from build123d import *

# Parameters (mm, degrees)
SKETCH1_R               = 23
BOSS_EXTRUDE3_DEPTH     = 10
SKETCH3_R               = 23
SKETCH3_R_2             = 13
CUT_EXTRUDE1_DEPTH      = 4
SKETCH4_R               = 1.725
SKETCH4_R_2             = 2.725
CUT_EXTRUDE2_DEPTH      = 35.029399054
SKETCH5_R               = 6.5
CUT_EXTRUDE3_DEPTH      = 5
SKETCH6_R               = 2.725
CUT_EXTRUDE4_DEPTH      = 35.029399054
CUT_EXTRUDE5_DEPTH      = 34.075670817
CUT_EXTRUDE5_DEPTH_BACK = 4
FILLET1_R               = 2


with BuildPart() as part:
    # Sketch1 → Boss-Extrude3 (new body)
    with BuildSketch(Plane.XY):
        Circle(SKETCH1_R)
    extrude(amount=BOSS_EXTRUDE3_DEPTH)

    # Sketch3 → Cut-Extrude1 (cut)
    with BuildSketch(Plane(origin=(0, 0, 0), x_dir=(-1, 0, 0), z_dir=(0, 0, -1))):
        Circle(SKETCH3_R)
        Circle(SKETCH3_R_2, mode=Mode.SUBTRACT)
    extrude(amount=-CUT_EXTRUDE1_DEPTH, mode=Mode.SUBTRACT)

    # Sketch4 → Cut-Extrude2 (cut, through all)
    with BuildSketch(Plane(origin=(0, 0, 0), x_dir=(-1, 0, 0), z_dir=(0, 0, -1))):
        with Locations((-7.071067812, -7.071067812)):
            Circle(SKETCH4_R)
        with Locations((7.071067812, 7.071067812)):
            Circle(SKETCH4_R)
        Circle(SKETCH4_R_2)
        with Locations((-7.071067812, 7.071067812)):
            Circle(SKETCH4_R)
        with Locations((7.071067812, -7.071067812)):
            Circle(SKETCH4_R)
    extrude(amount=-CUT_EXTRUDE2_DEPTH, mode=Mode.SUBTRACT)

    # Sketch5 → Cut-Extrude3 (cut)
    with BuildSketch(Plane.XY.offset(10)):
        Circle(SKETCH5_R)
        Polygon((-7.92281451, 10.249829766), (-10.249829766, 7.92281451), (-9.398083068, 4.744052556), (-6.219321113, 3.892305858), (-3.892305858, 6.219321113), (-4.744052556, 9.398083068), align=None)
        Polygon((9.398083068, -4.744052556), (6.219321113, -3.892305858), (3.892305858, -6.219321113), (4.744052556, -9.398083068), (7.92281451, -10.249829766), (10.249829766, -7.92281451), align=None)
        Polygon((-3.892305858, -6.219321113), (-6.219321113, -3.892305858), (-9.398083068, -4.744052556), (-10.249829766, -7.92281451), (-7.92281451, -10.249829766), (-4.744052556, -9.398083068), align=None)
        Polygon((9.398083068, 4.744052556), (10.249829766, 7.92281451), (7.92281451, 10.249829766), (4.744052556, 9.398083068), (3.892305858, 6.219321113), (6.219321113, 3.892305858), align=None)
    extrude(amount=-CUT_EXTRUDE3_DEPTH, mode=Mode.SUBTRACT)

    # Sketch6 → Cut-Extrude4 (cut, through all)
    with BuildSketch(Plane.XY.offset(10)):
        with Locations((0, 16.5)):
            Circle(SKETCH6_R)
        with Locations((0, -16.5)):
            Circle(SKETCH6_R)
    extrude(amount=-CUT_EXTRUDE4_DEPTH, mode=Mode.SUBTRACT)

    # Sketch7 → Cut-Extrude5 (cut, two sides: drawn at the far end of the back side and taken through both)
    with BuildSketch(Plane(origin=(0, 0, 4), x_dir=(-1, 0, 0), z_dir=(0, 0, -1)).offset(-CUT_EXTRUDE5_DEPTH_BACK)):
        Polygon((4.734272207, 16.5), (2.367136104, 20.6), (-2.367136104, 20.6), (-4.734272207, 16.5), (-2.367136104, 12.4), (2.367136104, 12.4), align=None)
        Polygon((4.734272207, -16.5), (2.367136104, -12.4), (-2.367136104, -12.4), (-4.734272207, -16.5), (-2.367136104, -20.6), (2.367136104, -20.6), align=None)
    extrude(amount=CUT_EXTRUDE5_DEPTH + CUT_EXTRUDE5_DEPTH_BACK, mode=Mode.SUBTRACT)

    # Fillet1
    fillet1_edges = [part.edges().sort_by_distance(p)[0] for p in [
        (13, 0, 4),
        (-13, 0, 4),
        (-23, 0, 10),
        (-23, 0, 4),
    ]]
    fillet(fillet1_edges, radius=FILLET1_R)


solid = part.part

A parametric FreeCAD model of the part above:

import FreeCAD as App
import Part
import Sketcher
from FreeCAD import Vector
Q = App.Units.Quantity


def edges_at(feature, points):
    """Names of the edges that pass closest to the given points."""
    edges = feature.Shape.Edges
    near = lambda p: min(range(len(edges)), key=lambda i: edges[i].distToShape(Part.Vertex(*p))[0])
    return sorted({f"Edge{near(p) + 1}" for p in points})

doc = App.newDocument("Part")
body = doc.addObject("PartDesign::Body", "Body")

sketch1 = body.newObject("Sketcher::SketchObject", "Sketch")
sketch1.AttachmentSupport = (doc.getObject("XY_Plane"), [""])
sketch1.MapMode = "FlatFace"
sketch1.addGeometry(Part.Circle(Vector(0, 0, 0), Vector(0, 0, 1), 23), False)
sketch1.addConstraint([
    Sketcher.Constraint("Coincident", 0, 3, -1, 1),
    Sketcher.Constraint("Diameter", 0, 46.0),
])
pad1 = body.newObject("PartDesign::Pad", "Pad")
pad1.Profile = sketch1
pad1.Length = 10

sketch2 = body.newObject("Sketcher::SketchObject", "Sketch001")
sketch2.AttachmentSupport = (doc.getObject("XY_Plane"), [""])
sketch2.MapMode = "FlatFace"
sketch2.addGeometry([
    Part.Circle(Vector(0, 0, 0), Vector(0, 0, 1), 23),
    Part.Circle(Vector(0, 0, 0), Vector(0, 0, 1), 13),
], False)
sketch2.addConstraint([
    Sketcher.Constraint("Coincident", 0, 3, -1, 1),
    Sketcher.Constraint("Coincident", 1, 3, -1, 1),
    Sketcher.Constraint("Diameter", 0, 46.0),
    Sketcher.Constraint("Diameter", 1, 26.0),
])
pocket1 = body.newObject("PartDesign::Pocket", "Pocket")
pocket1.Profile = sketch2
pocket1.Length = 4
pocket1.Reversed = True

sketch3 = body.newObject("Sketcher::SketchObject", "Sketch002")
sketch3.AttachmentSupport = (doc.getObject("XY_Plane"), [""])
sketch3.MapMode = "FlatFace"
sketch3.addGeometry([
    Part.Circle(Vector(7.1, -7.1, 0), Vector(0, 0, 1), 1.7),
    Part.Circle(Vector(-7.1, 7.1, 0), Vector(0, 0, 1), 1.7),
    Part.Circle(Vector(0, 0, 0), Vector(0, 0, 1), 2.7),
    Part.Circle(Vector(7.1, 7.1, 0), Vector(0, 0, 1), 1.7),
    Part.Circle(Vector(-7.1, -7.1, 0), Vector(0, 0, 1), 1.7),
], False)
sketch3.addConstraint([
    Sketcher.Constraint("Coincident", 2, 3, -1, 1),
    Sketcher.Constraint("Equal", 0, 1),
    Sketcher.Constraint("Equal", 1, 3),
    Sketcher.Constraint("Equal", 3, 4),
    Sketcher.Constraint("Symmetric", 0, 3, 1, 3, -1, 1),
    Sketcher.Constraint("Symmetric", 3, 3, 4, 3, -1, 1),
    Sketcher.Constraint("Symmetric", 1, 3, 3, 3, -2),
    Sketcher.Constraint("Diameter", 0, 3.45),
    Sketcher.Constraint("Diameter", 2, 5.45),
    Sketcher.Constraint("DistanceX", -1, 1, 0, 3, 7.071068),
    Sketcher.Constraint("DistanceY", 0, 3, -1, 1, 7.071068),
])
pocket2 = body.newObject("PartDesign::Pocket", "Pocket001")
pocket2.Profile = sketch3
pocket2.Type = "ThroughAll"
pocket2.Reversed = True

sketch4 = body.newObject("Sketcher::SketchObject", "Sketch003")
sketch4.AttachmentSupport = (doc.getObject("XY_Plane"), [""])
sketch4.MapMode = "FlatFace"
sketch4.AttachmentOffset = App.Placement(Vector(0, 0, 10), App.Rotation())
sketch4.addGeometry([
    Part.Circle(Vector(0, 0, 0), Vector(0, 0, 1), 6.5),
    Part.LineSegment(Vector(-7.9, 10.2, 0), Vector(-10.2, 7.9, 0)),
    Part.LineSegment(Vector(-10.2, 7.9, 0), Vector(-9.4, 4.7, 0)),
    Part.LineSegment(Vector(-9.4, 4.7, 0), Vector(-6.2, 3.9, 0)),
    Part.LineSegment(Vector(-6.2, 3.9, 0), Vector(-3.9, 6.2, 0)),
    Part.LineSegment(Vector(-3.9, 6.2, 0), Vector(-4.7, 9.4, 0)),
    Part.LineSegment(Vector(-4.7, 9.4, 0), Vector(-7.9, 10.2, 0)),
    Part.LineSegment(Vector(9.4, -4.7, 0), Vector(6.2, -3.9, 0)),
    Part.LineSegment(Vector(6.2, -3.9, 0), Vector(3.9, -6.2, 0)),
    Part.LineSegment(Vector(3.9, -6.2, 0), Vector(4.7, -9.4, 0)),
    Part.LineSegment(Vector(4.7, -9.4, 0), Vector(7.9, -10.2, 0)),
    Part.LineSegment(Vector(7.9, -10.2, 0), Vector(10.2, -7.9, 0)),
    Part.LineSegment(Vector(10.2, -7.9, 0), Vector(9.4, -4.7, 0)),
    Part.LineSegment(Vector(-3.9, -6.2, 0), Vector(-6.2, -3.9, 0)),
    Part.LineSegment(Vector(-6.2, -3.9, 0), Vector(-9.4, -4.7, 0)),
    Part.LineSegment(Vector(-9.4, -4.7, 0), Vector(-10.2, -7.9, 0)),
    Part.LineSegment(Vector(-10.2, -7.9, 0), Vector(-7.9, -10.2, 0)),
    Part.LineSegment(Vector(-7.9, -10.2, 0), Vector(-4.7, -9.4, 0)),
    Part.LineSegment(Vector(-4.7, -9.4, 0), Vector(-3.9, -6.2, 0)),
    Part.LineSegment(Vector(9.4, 4.7, 0), Vector(10.2, 7.9, 0)),
    Part.LineSegment(Vector(10.2, 7.9, 0), Vector(7.9, 10.2, 0)),
    Part.LineSegment(Vector(7.9, 10.2, 0), Vector(4.7, 9.4, 0)),
    Part.LineSegment(Vector(4.7, 9.4, 0), Vector(3.9, 6.2, 0)),
    Part.LineSegment(Vector(3.9, 6.2, 0), Vector(6.2, 3.9, 0)),
    Part.LineSegment(Vector(6.2, 3.9, 0), Vector(9.4, 4.7, 0)),
], False)
sketch4.addConstraint([
    Sketcher.Constraint("Coincident", 1, 2, 2, 1),
    Sketcher.Constraint("Coincident", 2, 2, 3, 1),
    Sketcher.Constraint("Coincident", 3, 2, 4, 1),
    Sketcher.Constraint("Coincident", 4, 2, 5, 1),
    Sketcher.Constraint("Coincident", 5, 2, 6, 1),
    Sketcher.Constraint("Coincident", 6, 2, 1, 1),
    Sketcher.Constraint("Coincident", 7, 2, 8, 1),
    Sketcher.Constraint("Coincident", 8, 2, 9, 1),
    Sketcher.Constraint("Coincident", 9, 2, 10, 1),
    Sketcher.Constraint("Coincident", 10, 2, 11, 1),
    Sketcher.Constraint("Coincident", 11, 2, 12, 1),
    Sketcher.Constraint("Coincident", 12, 2, 7, 1),
    Sketcher.Constraint("Coincident", 13, 2, 14, 1),
    Sketcher.Constraint("Coincident", 14, 2, 15, 1),
    Sketcher.Constraint("Coincident", 15, 2, 16, 1),
    Sketcher.Constraint("Coincident", 16, 2, 17, 1),
    Sketcher.Constraint("Coincident", 17, 2, 18, 1),
    Sketcher.Constraint("Coincident", 18, 2, 13, 1),
    Sketcher.Constraint("Coincident", 19, 2, 20, 1),
    Sketcher.Constraint("Coincident", 20, 2, 21, 1),
    Sketcher.Constraint("Coincident", 21, 2, 22, 1),
    Sketcher.Constraint("Coincident", 22, 2, 23, 1),
    Sketcher.Constraint("Coincident", 23, 2, 24, 1),
    Sketcher.Constraint("Coincident", 24, 2, 19, 1),
    Sketcher.Constraint("Coincident", 0, 3, -1, 1),
    Sketcher.Constraint("Symmetric", 3, 2, 7, 2, -1, 1),
    Sketcher.Constraint("Symmetric", 4, 2, 8, 2, -1, 1),
    Sketcher.Constraint("Symmetric", 5, 2, 9, 2, -1, 1),
    Sketcher.Constraint("Symmetric", 6, 2, 10, 2, -1, 1),
    Sketcher.Constraint("Symmetric", 1, 2, 11, 2, -1, 1),
    Sketcher.Constraint("Symmetric", 2, 2, 12, 2, -1, 1),
    Sketcher.Constraint("Symmetric", 15, 2, 19, 2, -1, 1),
    Sketcher.Constraint("Symmetric", 16, 2, 20, 2, -1, 1),
    Sketcher.Constraint("Symmetric", 17, 2, 21, 2, -1, 1),
    Sketcher.Constraint("Symmetric", 18, 2, 22, 2, -1, 1),
    Sketcher.Constraint("Symmetric", 13, 2, 23, 2, -1, 1),
    Sketcher.Constraint("Symmetric", 14, 2, 24, 2, -1, 1),
    Sketcher.Constraint("Symmetric", 7, 2, 13, 2, -2),
    Sketcher.Constraint("Symmetric", 12, 2, 14, 2, -2),
    Sketcher.Constraint("Symmetric", 11, 2, 15, 2, -2),
    Sketcher.Constraint("Symmetric", 10, 2, 16, 2, -2),
    Sketcher.Constraint("Symmetric", 9, 2, 17, 2, -2),
    Sketcher.Constraint("Symmetric", 8, 2, 18, 2, -2),
    Sketcher.Constraint("Parallel", 1, 4),
    Sketcher.Constraint("Parallel", 2, 5),
    Sketcher.Constraint("Parallel", 3, 6),
    Sketcher.Constraint("Perpendicular", 11, 13),
    Sketcher.Constraint("Perpendicular", 12, 14),
    Sketcher.Constraint("Equal", 1, 2),
    Sketcher.Constraint("Equal", 2, 3),
    Sketcher.Constraint("Equal", 3, 4),
    Sketcher.Constraint("Diameter", 0, 13.0),
    Sketcher.Constraint("Angle", 2, Q("-75 deg")),
    Sketcher.Constraint("DistanceX", 1, 2, -1, 1, 10.24983),
    Sketcher.Constraint("DistanceX", 3, 2, -1, 1, 6.219321),
    Sketcher.Constraint("DistanceY", -1, 1, 4, 2, 6.219321),
])
pocket3 = body.newObject("PartDesign::Pocket", "Pocket002")
pocket3.Profile = sketch4
pocket3.Length = 5

sketch5 = body.newObject("Sketcher::SketchObject", "Sketch004")
sketch5.AttachmentSupport = (doc.getObject("XY_Plane"), [""])
sketch5.MapMode = "FlatFace"
sketch5.AttachmentOffset = App.Placement(Vector(0, 0, 10), App.Rotation())
sketch5.addGeometry([
    Part.Circle(Vector(0, 16.5, 0), Vector(0, 0, 1), 2.7),
    Part.Circle(Vector(0, -16.5, 0), Vector(0, 0, 1), 2.7),
], False)
sketch5.addConstraint([
    Sketcher.Constraint("Equal", 0, 1),
    Sketcher.Constraint("Symmetric", 0, 3, 1, 3, -1, 1),
    Sketcher.Constraint("PointOnObject", 0, 3, -2),
    Sketcher.Constraint("Diameter", 0, 5.45),
    Sketcher.Constraint("DistanceY", 1, 3, 0, 3, 33.0),
])
pocket4 = body.newObject("PartDesign::Pocket", "Pocket003")
pocket4.Profile = sketch5
pocket4.Type = "ThroughAll"

sketch6 = body.newObject("Sketcher::SketchObject", "Sketch005")
sketch6.AttachmentSupport = (doc.getObject("XY_Plane"), [""])
sketch6.MapMode = "FlatFace"
sketch6.AttachmentOffset = App.Placement(Vector(0, 0, 4), App.Rotation())
sketch6.addGeometry([
    Part.LineSegment(Vector(-4.7, 16.5, 0), Vector(-2.4, 20.6, 0)),
    Part.LineSegment(Vector(-2.4, 20.6, 0), Vector(2.4, 20.6, 0)),
    Part.LineSegment(Vector(2.4, 20.6, 0), Vector(4.7, 16.5, 0)),
    Part.LineSegment(Vector(4.7, 16.5, 0), Vector(2.4, 12.4, 0)),
    Part.LineSegment(Vector(2.4, 12.4, 0), Vector(-2.4, 12.4, 0)),
    Part.LineSegment(Vector(-2.4, 12.4, 0), Vector(-4.7, 16.5, 0)),
    Part.LineSegment(Vector(-4.7, -16.5, 0), Vector(-2.4, -12.4, 0)),
    Part.LineSegment(Vector(-2.4, -12.4, 0), Vector(2.4, -12.4, 0)),
    Part.LineSegment(Vector(2.4, -12.4, 0), Vector(4.7, -16.5, 0)),
    Part.LineSegment(Vector(4.7, -16.5, 0), Vector(2.4, -20.6, 0)),
    Part.LineSegment(Vector(2.4, -20.6, 0), Vector(-2.4, -20.6, 0)),
    Part.LineSegment(Vector(-2.4, -20.6, 0), Vector(-4.7, -16.5, 0)),
], False)
sketch6.addConstraint([
    Sketcher.Constraint("Coincident", 0, 2, 1, 1),
    Sketcher.Constraint("Coincident", 1, 2, 2, 1),
    Sketcher.Constraint("Coincident", 2, 2, 3, 1),
    Sketcher.Constraint("Coincident", 3, 2, 4, 1),
    Sketcher.Constraint("Coincident", 4, 2, 5, 1),
    Sketcher.Constraint("Coincident", 5, 2, 0, 1),
    Sketcher.Constraint("Coincident", 6, 2, 7, 1),
    Sketcher.Constraint("Coincident", 7, 2, 8, 1),
    Sketcher.Constraint("Coincident", 8, 2, 9, 1),
    Sketcher.Constraint("Coincident", 9, 2, 10, 1),
    Sketcher.Constraint("Coincident", 10, 2, 11, 1),
    Sketcher.Constraint("Coincident", 11, 2, 6, 1),
    Sketcher.Constraint("Horizontal", 1),
    Sketcher.Constraint("Horizontal", 4),
    Sketcher.Constraint("Horizontal", 7),
    Sketcher.Constraint("Horizontal", 10),
    Sketcher.Constraint("Symmetric", 3, 2, 6, 2, -1, 1),
    Sketcher.Constraint("Symmetric", 5, 2, 8, 2, -1, 1),
    Sketcher.Constraint("Symmetric", 0, 2, 9, 2, -1, 1),
    Sketcher.Constraint("Symmetric", 2, 2, 11, 2, -1, 1),
    Sketcher.Constraint("Symmetric", 2, 2, 5, 2, -2),
    Sketcher.Constraint("Parallel", 0, 3),
    Sketcher.Constraint("Parallel", 2, 5),
    Sketcher.Constraint("Parallel", 5, 8),
    Sketcher.Constraint("Parallel", 8, 11),
    Sketcher.Constraint("Vertical", 1, 2, 3, 2),
    Sketcher.Constraint("Vertical", 0, 2, 4, 2),
    Sketcher.Constraint("Angle", 0, Q("60 deg")),
    Sketcher.Constraint("DistanceY", 6, 2, 0, 2, 33.0),
    Sketcher.Constraint("DistanceY", -1, 1, 0, 2, 20.6),
    Sketcher.Constraint("DistanceX", 1, 1, 1, 2, 4.734272),
])
pocket5 = body.newObject("PartDesign::Pocket", "Pocket004")
pocket5.Profile = sketch6
pocket5.Type = "TwoLengths"
pocket5.Length = 34.075671
pocket5.Length2 = 4
doc.recompute()

fillet = body.newObject("PartDesign::Fillet", "Fillet")
fillet.Base = (pocket5, edges_at(pocket5, [
    (13, 0, 4),
    (-13, 0, 4),
    (-23, 0, 10),
    (-23, 0, 4),
]))
fillet.Radius = 2

doc.recompute()
